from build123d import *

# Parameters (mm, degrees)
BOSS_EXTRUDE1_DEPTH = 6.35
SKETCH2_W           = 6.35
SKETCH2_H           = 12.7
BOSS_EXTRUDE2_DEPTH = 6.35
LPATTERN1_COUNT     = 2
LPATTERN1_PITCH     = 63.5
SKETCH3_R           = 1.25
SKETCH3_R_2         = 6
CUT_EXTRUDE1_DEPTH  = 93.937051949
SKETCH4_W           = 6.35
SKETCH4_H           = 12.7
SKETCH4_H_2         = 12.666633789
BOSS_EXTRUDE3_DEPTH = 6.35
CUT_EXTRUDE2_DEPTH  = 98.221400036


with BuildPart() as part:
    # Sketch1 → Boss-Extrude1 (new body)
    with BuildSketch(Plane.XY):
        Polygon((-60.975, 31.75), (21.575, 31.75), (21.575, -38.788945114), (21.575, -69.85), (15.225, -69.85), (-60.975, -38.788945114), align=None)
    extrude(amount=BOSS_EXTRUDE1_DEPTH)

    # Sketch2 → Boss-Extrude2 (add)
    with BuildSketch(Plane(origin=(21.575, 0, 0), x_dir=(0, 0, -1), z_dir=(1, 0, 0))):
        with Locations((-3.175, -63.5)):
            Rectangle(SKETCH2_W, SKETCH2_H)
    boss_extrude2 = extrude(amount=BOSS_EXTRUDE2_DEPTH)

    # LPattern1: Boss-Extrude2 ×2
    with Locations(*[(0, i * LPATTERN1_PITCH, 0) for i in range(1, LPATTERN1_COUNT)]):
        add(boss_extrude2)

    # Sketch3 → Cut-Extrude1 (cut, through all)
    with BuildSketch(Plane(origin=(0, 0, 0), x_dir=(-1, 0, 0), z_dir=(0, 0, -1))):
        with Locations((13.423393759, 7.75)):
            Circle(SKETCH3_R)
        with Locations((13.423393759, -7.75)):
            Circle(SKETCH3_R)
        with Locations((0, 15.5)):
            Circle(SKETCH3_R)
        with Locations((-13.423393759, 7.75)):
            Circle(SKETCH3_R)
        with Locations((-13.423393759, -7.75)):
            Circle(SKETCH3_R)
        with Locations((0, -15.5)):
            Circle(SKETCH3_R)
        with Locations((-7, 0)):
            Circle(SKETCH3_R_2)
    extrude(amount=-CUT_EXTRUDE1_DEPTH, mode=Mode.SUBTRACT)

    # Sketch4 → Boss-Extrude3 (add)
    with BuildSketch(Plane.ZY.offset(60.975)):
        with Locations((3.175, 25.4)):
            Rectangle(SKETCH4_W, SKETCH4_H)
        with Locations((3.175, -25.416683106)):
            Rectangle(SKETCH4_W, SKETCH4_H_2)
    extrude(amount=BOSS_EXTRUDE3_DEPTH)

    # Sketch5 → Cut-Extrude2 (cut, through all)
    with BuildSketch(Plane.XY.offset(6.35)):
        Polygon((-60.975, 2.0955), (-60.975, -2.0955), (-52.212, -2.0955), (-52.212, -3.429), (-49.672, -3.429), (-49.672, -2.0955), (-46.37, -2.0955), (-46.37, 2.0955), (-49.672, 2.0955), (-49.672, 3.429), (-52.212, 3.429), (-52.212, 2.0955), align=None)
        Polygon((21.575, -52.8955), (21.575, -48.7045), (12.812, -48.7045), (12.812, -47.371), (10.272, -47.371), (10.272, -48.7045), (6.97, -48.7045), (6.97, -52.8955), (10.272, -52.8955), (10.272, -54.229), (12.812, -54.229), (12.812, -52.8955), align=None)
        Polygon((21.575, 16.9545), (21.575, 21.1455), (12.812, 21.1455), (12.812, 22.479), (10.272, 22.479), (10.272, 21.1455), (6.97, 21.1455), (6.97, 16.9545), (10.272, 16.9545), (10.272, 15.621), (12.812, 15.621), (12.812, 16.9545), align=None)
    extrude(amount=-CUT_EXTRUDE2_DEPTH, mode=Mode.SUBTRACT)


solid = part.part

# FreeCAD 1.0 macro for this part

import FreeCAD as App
import Part
import Sketcher
from FreeCAD import Vector
Q = App.Units.Quantity

doc = App.newDocument("Part")
body = doc.addObject("PartDesign::Body", "Body")

# Sketch on XY plane
sketch1 = body.newObject("Sketcher::SketchObject", "Sketch")
sketch1.AttachmentSupport = (doc.getObject("XY_Plane"), [""])
sketch1.MapMode = "FlatFace"
sketch1.addGeometry(Part.LineSegment(Vector(22, 32, 0), Vector(-61, 32, 0)), False)
sketch1.addGeometry(Part.LineSegment(Vector(-61, 32, 0), Vector(-61, -39, 0)), False)
sketch1.addGeometry(Part.LineSegment(Vector(-61, -39, 0), Vector(15, -70, 0)), False)
sketch1.addGeometry(Part.LineSegment(Vector(15, -70, 0), Vector(22, -70, 0)), False)
sketch1.addGeometry(Part.LineSegment(Vector(22, -70, 0), Vector(22, 32, 0)), False)
sketch1.addConstraint(Sketcher.Constraint("Coincident", 0, 2, 1, 1))
sketch1.addConstraint(Sketcher.Constraint("Coincident", 1, 2, 2, 1))
sketch1.addConstraint(Sketcher.Constraint("Coincident", 2, 2, 3, 1))
sketch1.addConstraint(Sketcher.Constraint("Coincident", 3, 2, 4, 1))
sketch1.addConstraint(Sketcher.Constraint("Coincident", 4, 2, 0, 1))
sketch1.addConstraint(Sketcher.Constraint("Horizontal", 0))
sketch1.addConstraint(Sketcher.Constraint("Vertical", 1))
sketch1.addConstraint(Sketcher.Constraint("Horizontal", 3))
sketch1.addConstraint(Sketcher.Constraint("Vertical", 4))
sketch1.addConstraint(Sketcher.Constraint("DistanceY", 4, 1, 4, 2, Q("4 in")))
sketch1.addConstraint(Sketcher.Constraint("DistanceX", 1, 2, 2, 2, Q("3 in")))
sketch1.addConstraint(Sketcher.Constraint("DistanceX", 0, 2, 0, 1, Q("3.25 in")))
sketch1.addConstraint(Sketcher.Constraint("DistanceY", -1, 1, 0, 2, Q("1.25 in")))
sketch1.addConstraint(Sketcher.Constraint("DistanceX", 0, 2, -1, 1, 60.975))
sketch1.addConstraint(Sketcher.Constraint("Distance", 2, 82.287479))
pad1 = body.newObject("PartDesign::Pad", "Pad")
pad1.Profile = sketch1
pad1.Length = Q("0.25 in")

# Sketch on YZ plane
sketch2 = body.newObject("Sketcher::SketchObject", "Sketch001")
sketch2.AttachmentSupport = (doc.getObject("YZ_Plane"), [""])
sketch2.MapMode = "FlatFace"
sketch2.AttachmentOffset = App.Placement(Vector(0, 0, 21.575), App.Rotation())
sketch2.addGeometry(Part.LineSegment(Vector(-57, 6, 0), Vector(-70, 6, 0)), False)
sketch2.addGeometry(Part.LineSegment(Vector(-70, 6, 0), Vector(-70, 0, 0)), False)
sketch2.addGeometry(Part.LineSegment(Vector(-70, 0, 0), Vector(-57, 0, 0)), False)
sketch2.addGeometry(Part.LineSegment(Vector(-57, 0, 0), Vector(-57, 6, 0)), False)
sketch2.addConstraint(Sketcher.Constraint("Coincident", 0, 2, 1, 1))
sketch2.addConstraint(Sketcher.Constraint("Coincident", 1, 2, 2, 1))
sketch2.addConstraint(Sketcher.Constraint("Coincident", 2, 2, 3, 1))
sketch2.addConstraint(Sketcher.Constraint("Coincident", 3, 2, 0, 1))
sketch2.addConstraint(Sketcher.Constraint("Horizontal", 0))
sketch2.addConstraint(Sketcher.Constraint("Vertical", 1))
sketch2.addConstraint(Sketcher.Constraint("Horizontal", 2))
sketch2.addConstraint(Sketcher.Constraint("Vertical", 3))
sketch2.addConstraint(Sketcher.Constraint("PointOnObject", 1, 2, -1))
sketch2.addConstraint(Sketcher.Constraint("DistanceX", 0, 2, 0, 1, Q("0.5 in")))
sketch2.addConstraint(Sketcher.Constraint("DistanceY", 1, 2, 1, 1, Q("0.25 in")))
sketch2.addConstraint(Sketcher.Constraint("DistanceX", 0, 2, -1, 1, Q("2.75 in")))
pad2 = body.newObject("PartDesign::Pad", "Pad001")
pad2.Profile = sketch2
pad2.Length = Q("0.25 in")
doc.recompute()

linearpattern = body.newObject("PartDesign::LinearPattern", "LinearPattern")
linearpattern.Originals = [pad2]
linearpattern.Direction = (doc.getObject("Y_Axis"), [""])
linearpattern.Mode = "offset"
linearpattern.Offset = Q("2.5 in")
linearpattern.Occurrences = 2
body.Tip = linearpattern

# Sketch on XY plane
sketch3 = body.newObject("Sketcher::SketchObject", "Sketch002")
sketch3.AttachmentSupport = (doc.getObject("XY_Plane"), [""])
sketch3.MapMode = "FlatFace"
sketch3.addGeometry(Part.Circle(Vector(-13.4, 7.8, 0), Vector(0, 0, 1), 1.2), False)
sketch3.addGeometry(Part.Circle(Vector(-13.4, -7.8, 0), Vector(0, 0, 1), 1.2), False)
sketch3.addGeometry(Part.Circle(Vector(0, 15.5, 0), Vector(0, 0, 1), 1.2), False)
sketch3.addGeometry(Part.Circle(Vector(13.4, 7.8, 0), Vector(0, 0, 1), 1.2), False)
sketch3.addGeometry(Part.Circle(Vector(13.4, -7.8, 0), Vector(0, 0, 1), 1.2), False)
sketch3.addGeometry(Part.Circle(Vector(0, -15.5, 0), Vector(0, 0, 1), 1.2), False)
sketch3.addGeometry(Part.Circle(Vector(7, 0, 0), Vector(0, 0, 1), 6), False)
sketch3.addConstraint(Sketcher.Constraint("Equal", 0, 1))
sketch3.addConstraint(Sketcher.Constraint("Equal", 1, 2))
sketch3.addConstraint(Sketcher.Constraint("Equal", 2, 3))
sketch3.addConstraint(Sketcher.Constraint("Equal", 3, 4))
sketch3.addConstraint(Sketcher.Constraint("Equal", 4, 5))
sketch3.addConstraint(Sketcher.Constraint("Symmetric", 1, 3, 3, 3, -1, 1))
sketch3.addConstraint(Sketcher.Constraint("Symmetric", 0, 3, 4, 3, -1, 1))
sketch3.addConstraint(Sketcher.Constraint("Symmetric", 2, 3, 5, 3, -1, 1))
sketch3.addConstraint(Sketcher.Constraint("Symmetric", 0, 3, 3, 3, -2))
sketch3.addConstraint(Sketcher.Constraint("PointOnObject", 2, 3, -2))
sketch3.addConstraint(Sketcher.Constraint("PointOnObject", 6, 3, -1))
sketch3.addConstraint(Sketcher.Constraint("Diameter", 0, 2.5))
sketch3.addConstraint(Sketcher.Constraint("Diameter", 6, 12.0))
sketch3.addConstraint(Sketcher.Constraint("DistanceY", -1, 1, 0, 3, 7.75))
sketch3.addConstraint(Sketcher.Constraint("DistanceY", -1, 1, 2, 3, 15.5))
sketch3.addConstraint(Sketcher.Constraint("DistanceX", -1, 1, 6, 3, 7.0))
sketch3.addConstraint(Sketcher.Constraint("DistanceX", 0, 3, -1, 1, 13.423394))
pocket1 = body.newObject("PartDesign::Pocket", "Pocket")
pocket1.Profile = sketch3
pocket1.Type = "ThroughAll"
pocket1.Reversed = True

# Sketch on YZ plane
sketch4 = body.newObject("Sketcher::SketchObject", "Sketch003")
sketch4.AttachmentSupport = (doc.getObject("YZ_Plane"), [""])
sketch4.MapMode = "FlatFace"
sketch4.AttachmentOffset = App.Placement(Vector(0, 0, -60.975), App.Rotation())
sketch4.addGeometry(Part.LineSegment(Vector(32, 0, 0), Vector(19, 0, 0)), False)
sketch4.addGeometry(Part.LineSegment(Vector(19, 0, 0), Vector(19, 6, 0)), False)
sketch4.addGeometry(Part.LineSegment(Vector(19, 6, 0), Vector(32, 6, 0)), False)
sketch4.addGeometry(Part.LineSegment(Vector(32, 6, 0), Vector(32, 0, 0)), False)
sketch4.addGeometry(Part.LineSegment(Vector(-19, 0, 0), Vector(-32, 0, 0)), False)
sketch4.addGeometry(Part.LineSegment(Vector(-32, 0, 0), Vector(-32, 6, 0)), False)
sketch4.addGeometry(Part.LineSegment(Vector(-32, 6, 0), Vector(-19, 6, 0)), False)
sketch4.addGeometry(Part.LineSegment(Vector(-19, 6, 0), Vector(-19, 0, 0)), False)
sketch4.addConstraint(Sketcher.Constraint("Coincident", 0, 2, 1, 1))
sketch4.addConstraint(Sketcher.Constraint("Coincident", 1, 2, 2, 1))
sketch4.addConstraint(Sketcher.Constraint("Coincident", 2, 2, 3, 1))
sketch4.addConstraint(Sketcher.Constraint("Coincident", 3, 2, 0, 1))
sketch4.addConstraint(Sketcher.Constraint("Coincident", 4, 2, 5, 1))
sketch4.addConstraint(Sketcher.Constraint("Coincident", 5, 2, 6, 1))
sketch4.addConstraint(Sketcher.Constraint("Coincident", 6, 2, 7, 1))
sketch4.addConstraint(Sketcher.Constraint("Coincident", 7, 2, 4, 1))
sketch4.addConstraint(Sketcher.Constraint("Horizontal", 0))
sketch4.addConstraint(Sketcher.Constraint("Vertical", 1))
sketch4.addConstraint(Sketcher.Constraint("Horizontal", 2))
sketch4.addConstraint(Sketcher.Constraint("Vertical", 3))
sketch4.addConstraint(Sketcher.Constraint("Horizontal", 4))
sketch4.addConstraint(Sketcher.Constraint("Vertical", 5))
sketch4.addConstraint(Sketcher.Constraint("Horizontal", 6))
sketch4.addConstraint(Sketcher.Constraint("Vertical", 7))
sketch4.addConstraint(Sketcher.Constraint("Symmetric", 3, 2, 4, 2, -1, 1))
sketch4.addConstraint(Sketcher.Constraint("PointOnObject", 0, 2, -1))
sketch4.addConstraint(Sketcher.Constraint("Horizontal", 2, 2, 5, 2))
sketch4.addConstraint(Sketcher.Constraint("DistanceX", 0, 2, 0, 1, Q("0.5 in")))
sketch4.addConstraint(Sketcher.Constraint("DistanceX", 4, 2, 0, 2, Q("2 in")))
sketch4.addConstraint(Sketcher.Constraint("DistanceY", 1, 1, 1, 2, Q("0.25 in")))
sketch4.addConstraint(Sketcher.Constraint("DistanceX", 4, 2, 4, 1, 12.666634))
pad3 = body.newObject("PartDesign::Pad", "Pad002")
pad3.Profile = sketch4
pad3.Length = Q("0.25 in")
pad3.Reversed = True

# Sketch on XY plane
sketch5 = body.newObject("Sketcher::SketchObject", "Sketch004")
sketch5.AttachmentSupport = (doc.getObject("XY_Plane"), [""])
sketch5.MapMode = "FlatFace"
sketch5.AttachmentOffset = App.Placement(Vector(0, 0, 0.25 * 25.4), App.Rotation())
sketch5.addGeometry(Part.LineSegment(Vector(-61, 2.1, 0), Vector(-61, -2.1, 0)), False)
sketch5.addGeometry(Part.LineSegment(Vector(-61, -2.1, 0), Vector(-52.2, -2.1, 0)), False)
sketch5.addGeometry(Part.LineSegment(Vector(-52.2, -2.1, 0), Vector(-52.2, -3.4, 0)), False)
sketch5.addGeometry(Part.LineSegment(Vector(-52.2, -3.4, 0), Vector(-49.7, -3.4, 0)), False)
sketch5.addGeometry(Part.LineSegment(Vector(-49.7, -3.4, 0), Vector(-49.7, -2.1, 0)), False)
sketch5.addGeometry(Part.LineSegment(Vector(-49.7, -2.1, 0), Vector(-46.4, -2.1, 0)), False)
sketch5.addGeometry(Part.LineSegment(Vector(-46.4, -2.1, 0), Vector(-46.4, 2.1, 0)), False)
sketch5.addGeometry(Part.LineSegment(Vector(-46.4, 2.1, 0), Vector(-49.7, 2.1, 0)), False)
sketch5.addGeometry(Part.LineSegment(Vector(-49.7, 2.1, 0), Vector(-49.7, 3.4, 0)), False)
sketch5.addGeometry(Part.LineSegment(Vector(-49.7, 3.4, 0), Vector(-52.2, 3.4, 0)), False)
sketch5.addGeometry(Part.LineSegment(Vector(-52.2, 3.4, 0), Vector(-52.2, 2.1, 0)), False)
sketch5.addGeometry(Part.LineSegment(Vector(-52.2, 2.1, 0), Vector(-61, 2.1, 0)), False)
sketch5.addGeometry(Part.LineSegment(Vector(21.6, -52.9, 0), Vector(21.6, -48.7, 0)), False)
sketch5.addGeometry(Part.LineSegment(Vector(21.6, -48.7, 0), Vector(12.8, -48.7, 0)), False)
sketch5.addGeometry(Part.LineSegment(Vector(12.8, -48.7, 0), Vector(12.8, -47.4, 0)), False)
sketch5.addGeometry(Part.LineSegment(Vector(12.8, -47.4, 0), Vector(10.3, -47.4, 0)), False)
sketch5.addGeometry(Part.LineSegment(Vector(10.3, -47.4, 0), Vector(10.3, -48.7, 0)), False)
sketch5.addGeometry(Part.LineSegment(Vector(10.3, -48.7, 0), Vector(7, -48.7, 0)), False)
sketch5.addGeometry(Part.LineSegment(Vector(7, -48.7, 0), Vector(7, -52.9, 0)), False)
sketch5.addGeometry(Part.LineSegment(Vector(7, -52.9, 0), Vector(10.3, -52.9, 0)), False)
sketch5.addGeometry(Part.LineSegment(Vector(10.3, -52.9, 0), Vector(10.3, -54.2, 0)), False)
sketch5.addGeometry(Part.LineSegment(Vector(10.3, -54.2, 0), Vector(12.8, -54.2, 0)), False)
sketch5.addGeometry(Part.LineSegment(Vector(12.8, -54.2, 0), Vector(12.8, -52.9, 0)), False)
sketch5.addGeometry(Part.LineSegment(Vector(12.8, -52.9, 0), Vector(21.6, -52.9, 0)), False)
sketch5.addGeometry(Part.LineSegment(Vector(21.6, 17, 0), Vector(21.6, 21.1, 0)), False)
sketch5.addGeometry(Part.LineSegment(Vector(21.6, 21.1, 0), Vector(12.8, 21.1, 0)), False)
sketch5.addGeometry(Part.LineSegment(Vector(12.8, 21.1, 0), Vector(12.8, 22.5, 0)), False)
sketch5.addGeometry(Part.LineSegment(Vector(12.8, 22.5, 0), Vector(10.3, 22.5, 0)), False)
sketch5.addGeometry(Part.LineSegment(Vector(10.3, 22.5, 0), Vector(10.3, 21.1, 0)), False)
sketch5.addGeometry(Part.LineSegment(Vector(10.3, 21.1, 0), Vector(7, 21.1, 0)), False)
sketch5.addGeometry(Part.LineSegment(Vector(7, 21.1, 0), Vector(7, 17, 0)), False)
sketch5.addGeometry(Part.LineSegment(Vector(7, 17, 0), Vector(10.3, 17, 0)), False)
sketch5.addGeometry(Part.LineSegment(Vector(10.3, 17, 0), Vector(10.3, 15.6, 0)), False)
sketch5.addGeometry(Part.LineSegment(Vector(10.3, 15.6, 0), Vector(12.8, 15.6, 0)), False)
sketch5.addGeometry(Part.LineSegment(Vector(12.8, 15.6, 0), Vector(12.8, 17, 0)), False)
sketch5.addGeometry(Part.LineSegment(Vector(12.8, 17, 0), Vector(21.6, 17, 0)), False)
sketch5.addConstraint(Sketcher.Constraint("Coincident", 0, 2, 1, 1))
sketch5.addConstraint(Sketcher.Constraint("Coincident", 1, 2, 2, 1))
sketch5.addConstraint(Sketcher.Constraint("Coincident", 2, 2, 3, 1))
sketch5.addConstraint(Sketcher.Constraint("Coincident", 3, 2, 4, 1))
sketch5.addConstraint(Sketcher.Constraint("Coincident", 4, 2, 5, 1))
sketch5.addConstraint(Sketcher.Constraint("Coincident", 5, 2, 6, 1))
sketch5.addConstraint(Sketcher.Constraint("Coincident", 6, 2, 7, 1))
sketch5.addConstraint(Sketcher.Constraint("Coincident", 7, 2, 8, 1))
sketch5.addConstraint(Sketcher.Constraint("Coincident", 8, 2, 9, 1))
sketch5.addConstraint(Sketcher.Constraint("Coincident", 9, 2, 10, 1))
sketch5.addConstraint(Sketcher.Constraint("Coincident", 10, 2, 11, 1))
sketch5.addConstraint(Sketcher.Constraint("Coincident", 11, 2, 0, 1))
sketch5.addConstraint(Sketcher.Constraint("Coincident", 12, 2, 13, 1))
sketch5.addConstraint(Sketcher.Constraint("Coincident", 13, 2, 14, 1))
sketch5.addConstraint(Sketcher.Constraint("Coincident", 14, 2, 15, 1))
sketch5.addConstraint(Sketcher.Constraint("Coincident", 15, 2, 16, 1))
sketch5.addConstraint(Sketcher.Constraint("Coincident", 16, 2, 17, 1))
sketch5.addConstraint(Sketcher.Constraint("Coincident", 17, 2, 18, 1))
sketch5.addConstraint(Sketcher.Constraint("Coincident", 18, 2, 19, 1))
sketch5.addConstraint(Sketcher.Constraint("Coincident", 19, 2, 20, 1))
sketch5.addConstraint(Sketcher.Constraint("Coincident", 20, 2, 21, 1))
sketch5.addConstraint(Sketcher.Constraint("Coincident", 21, 2, 22, 1))
sketch5.addConstraint(Sketcher.Constraint("Coincident", 22, 2, 23, 1))
sketch5.addConstraint(Sketcher.Constraint("Coincident", 23, 2, 12, 1))
sketch5.addConstraint(Sketcher.Constraint("Coincident", 24, 2, 25, 1))
sketch5.addConstraint(Sketcher.Constraint("Coincident", 25, 2, 26, 1))
sketch5.addConstraint(Sketcher.Constraint("Coincident", 26, 2, 27, 1))
sketch5.addConstraint(Sketcher.Constraint("Coincident", 27, 2, 28, 1))
sketch5.addConstraint(Sketcher.Constraint("Coincident", 28, 2, 29, 1))
sketch5.addConstraint(Sketcher.Constraint("Coincident", 29, 2, 30, 1))
sketch5.addConstraint(Sketcher.Constraint("Coincident", 30, 2, 31, 1))
sketch5.addConstraint(Sketcher.Constraint("Coincident", 31, 2, 32, 1))
sketch5.addConstraint(Sketcher.Constraint("Coincident", 32, 2, 33, 1))
sketch5.addConstraint(Sketcher.Constraint("Coincident", 33, 2, 34, 1))
sketch5.addConstraint(Sketcher.Constraint("Coincident", 34, 2, 35, 1))
sketch5.addConstraint(Sketcher.Constraint("Coincident", 35, 2, 24, 1))
sketch5.addConstraint(Sketcher.Constraint("Vertical", 0))
sketch5.addConstraint(Sketcher.Constraint("Horizontal", 1))
sketch5.addConstraint(Sketcher.Constraint("Vertical", 2))
sketch5.addConstraint(Sketcher.Constraint("Horizontal", 3))
sketch5.addConstraint(Sketcher.Constraint("Vertical", 4))
sketch5.addConstraint(Sketcher.Constraint("Horizontal", 5))
sketch5.addConstraint(Sketcher.Constraint("Vertical", 6))
sketch5.addConstraint(Sketcher.Constraint("Horizontal", 7))
sketch5.addConstraint(Sketcher.Constraint("Vertical", 8))
sketch5.addConstraint(Sketcher.Constraint("Horizontal", 9))
sketch5.addConstraint(Sketcher.Constraint("Vertical", 10))
sketch5.addConstraint(Sketcher.Constraint("Horizontal", 11))
sketch5.addConstraint(Sketcher.Constraint("Vertical", 12))
sketch5.addConstraint(Sketcher.Constraint("Horizontal", 13))
sketch5.addConstraint(Sketcher.Constraint("Vertical", 14))
sketch5.addConstraint(Sketcher.Constraint("Horizontal", 15))
sketch5.addConstraint(Sketcher.Constraint("Vertical", 16))
sketch5.addConstraint(Sketcher.Constraint("Horizontal", 17))
sketch5.addConstraint(Sketcher.Constraint("Vertical", 18))
sketch5.addConstraint(Sketcher.Constraint("Horizontal", 19))
sketch5.addConstraint(Sketcher.Constraint("Vertical", 20))
sketch5.addConstraint(Sketcher.Constraint("Horizontal", 21))
sketch5.addConstraint(Sketcher.Constraint("Vertical", 22))
sketch5.addConstraint(Sketcher.Constraint("Horizontal", 23))
sketch5.addConstraint(Sketcher.Constraint("Vertical", 24))
sketch5.addConstraint(Sketcher.Constraint("Horizontal", 25))
sketch5.addConstraint(Sketcher.Constraint("Vertical", 26))
sketch5.addConstraint(Sketcher.Constraint("Horizontal", 27))
sketch5.addConstraint(Sketcher.Constraint("Vertical", 28))
sketch5.addConstraint(Sketcher.Constraint("Horizontal", 29))
sketch5.addConstraint(Sketcher.Constraint("Vertical", 30))
sketch5.addConstraint(Sketcher.Constraint("Horizontal", 31))
sketch5.addConstraint(Sketcher.Constraint("Vertical", 32))
sketch5.addConstraint(Sketcher.Constraint("Horizontal", 33))
sketch5.addConstraint(Sketcher.Constraint("Vertical", 34))
sketch5.addConstraint(Sketcher.Constraint("Horizontal", 35))
sketch5.addConstraint(Sketcher.Constraint("Symmetric", 4, 2, 7, 2, -1))
sketch5.addConstraint(Sketcher.Constraint("Symmetric", 2, 2, 9, 2, -1))
sketch5.addConstraint(Sketcher.Constraint("Horizontal", 1, 2, 4, 2))
sketch5.addConstraint(Sketcher.Constraint("Horizontal", 7, 2, 10, 2))
sketch5.addConstraint(Sketcher.Constraint("Horizontal", 13, 2, 16, 2))
sketch5.addConstraint(Sketcher.Constraint("Horizontal", 19, 2, 22, 2))
sketch5.addConstraint(Sketcher.Constraint("Horizontal", 25, 2, 28, 2))
sketch5.addConstraint(Sketcher.Constraint("Horizontal", 31, 2, 34, 2))
sketch5.addConstraint(Sketcher.Constraint("Vertical", 16, 2, 19, 2))
sketch5.addConstraint(Sketcher.Constraint("Vertical", 14, 2, 21, 2))
sketch5.addConstraint(Sketcher.Constraint("Vertical", 23, 2, 24, 2))
sketch5.addConstraint(Sketcher.Constraint("Vertical", 22, 2, 25, 2))
sketch5.addConstraint(Sketcher.Constraint("Vertical", 20, 2, 27, 2))
sketch5.addConstraint(Sketcher.Constraint("Vertical", 18, 2, 29, 2))
sketch5.addConstraint(Sketcher.Constraint("Vertical", 28, 2, 31, 2))
sketch5.addConstraint(Sketcher.Constraint("Vertical", 26, 2, 33, 2))
sketch5.addConstraint(Sketcher.Constraint("Equal", 11, 13))
sketch5.addConstraint(Sketcher.Constraint("Equal", 9, 15))
sketch5.addConstraint(Sketcher.Constraint("Equal", 7, 17))
sketch5.addConstraint(Sketcher.Constraint("Equal", 6, 12))
sketch5.addConstraint(Sketcher.Constraint("Equal", 10, 14))
sketch5.addConstraint(Sketcher.Constraint("Equal", 16, 20))
sketch5.addConstraint(Sketcher.Constraint("Equal", 18, 24))
sketch5.addConstraint(Sketcher.Constraint("Equal", 22, 26))
sketch5.addConstraint(Sketcher.Constraint("Equal", 28, 32))
sketch5.addConstraint(Sketcher.Constraint("DistanceX", 3, 1, 3, 2, Q("0.1 in")))
sketch5.addConstraint(Sketcher.Constraint("DistanceY", 12, 2, 6, 2, Q("2 in")))
sketch5.addConstraint(Sketcher.Constraint("DistanceX", 5, 1, 5, 2, Q("0.13 in")))
sketch5.addConstraint(Sketcher.Constraint("DistanceX", 1, 1, 1, 2, Q("0.345 in")))
sketch5.addConstraint(Sketcher.Constraint("DistanceY", 0, 2, 0, 1, Q("0.165 in")))
sketch5.addConstraint(Sketcher.Constraint("DistanceX", 5, 2, 13, 2, Q("2.33 in")))
sketch5.addConstraint(Sketcher.Constraint("DistanceY", 14, 2, 3, 2, Q("1.73 in")))
sketch5.addConstraint(Sketcher.Constraint("DistanceY", 12, 2, 24, 2, Q("2.75 in")))
sketch5.addConstraint(Sketcher.Constraint("DistanceX", 0, 2, -1, 1, 60.975))
pocket2 = body.newObject("PartDesign::Pocket", "Pocket001")
pocket2.Profile = sketch5
pocket2.Type = "ThroughAll"

doc.recompute()
